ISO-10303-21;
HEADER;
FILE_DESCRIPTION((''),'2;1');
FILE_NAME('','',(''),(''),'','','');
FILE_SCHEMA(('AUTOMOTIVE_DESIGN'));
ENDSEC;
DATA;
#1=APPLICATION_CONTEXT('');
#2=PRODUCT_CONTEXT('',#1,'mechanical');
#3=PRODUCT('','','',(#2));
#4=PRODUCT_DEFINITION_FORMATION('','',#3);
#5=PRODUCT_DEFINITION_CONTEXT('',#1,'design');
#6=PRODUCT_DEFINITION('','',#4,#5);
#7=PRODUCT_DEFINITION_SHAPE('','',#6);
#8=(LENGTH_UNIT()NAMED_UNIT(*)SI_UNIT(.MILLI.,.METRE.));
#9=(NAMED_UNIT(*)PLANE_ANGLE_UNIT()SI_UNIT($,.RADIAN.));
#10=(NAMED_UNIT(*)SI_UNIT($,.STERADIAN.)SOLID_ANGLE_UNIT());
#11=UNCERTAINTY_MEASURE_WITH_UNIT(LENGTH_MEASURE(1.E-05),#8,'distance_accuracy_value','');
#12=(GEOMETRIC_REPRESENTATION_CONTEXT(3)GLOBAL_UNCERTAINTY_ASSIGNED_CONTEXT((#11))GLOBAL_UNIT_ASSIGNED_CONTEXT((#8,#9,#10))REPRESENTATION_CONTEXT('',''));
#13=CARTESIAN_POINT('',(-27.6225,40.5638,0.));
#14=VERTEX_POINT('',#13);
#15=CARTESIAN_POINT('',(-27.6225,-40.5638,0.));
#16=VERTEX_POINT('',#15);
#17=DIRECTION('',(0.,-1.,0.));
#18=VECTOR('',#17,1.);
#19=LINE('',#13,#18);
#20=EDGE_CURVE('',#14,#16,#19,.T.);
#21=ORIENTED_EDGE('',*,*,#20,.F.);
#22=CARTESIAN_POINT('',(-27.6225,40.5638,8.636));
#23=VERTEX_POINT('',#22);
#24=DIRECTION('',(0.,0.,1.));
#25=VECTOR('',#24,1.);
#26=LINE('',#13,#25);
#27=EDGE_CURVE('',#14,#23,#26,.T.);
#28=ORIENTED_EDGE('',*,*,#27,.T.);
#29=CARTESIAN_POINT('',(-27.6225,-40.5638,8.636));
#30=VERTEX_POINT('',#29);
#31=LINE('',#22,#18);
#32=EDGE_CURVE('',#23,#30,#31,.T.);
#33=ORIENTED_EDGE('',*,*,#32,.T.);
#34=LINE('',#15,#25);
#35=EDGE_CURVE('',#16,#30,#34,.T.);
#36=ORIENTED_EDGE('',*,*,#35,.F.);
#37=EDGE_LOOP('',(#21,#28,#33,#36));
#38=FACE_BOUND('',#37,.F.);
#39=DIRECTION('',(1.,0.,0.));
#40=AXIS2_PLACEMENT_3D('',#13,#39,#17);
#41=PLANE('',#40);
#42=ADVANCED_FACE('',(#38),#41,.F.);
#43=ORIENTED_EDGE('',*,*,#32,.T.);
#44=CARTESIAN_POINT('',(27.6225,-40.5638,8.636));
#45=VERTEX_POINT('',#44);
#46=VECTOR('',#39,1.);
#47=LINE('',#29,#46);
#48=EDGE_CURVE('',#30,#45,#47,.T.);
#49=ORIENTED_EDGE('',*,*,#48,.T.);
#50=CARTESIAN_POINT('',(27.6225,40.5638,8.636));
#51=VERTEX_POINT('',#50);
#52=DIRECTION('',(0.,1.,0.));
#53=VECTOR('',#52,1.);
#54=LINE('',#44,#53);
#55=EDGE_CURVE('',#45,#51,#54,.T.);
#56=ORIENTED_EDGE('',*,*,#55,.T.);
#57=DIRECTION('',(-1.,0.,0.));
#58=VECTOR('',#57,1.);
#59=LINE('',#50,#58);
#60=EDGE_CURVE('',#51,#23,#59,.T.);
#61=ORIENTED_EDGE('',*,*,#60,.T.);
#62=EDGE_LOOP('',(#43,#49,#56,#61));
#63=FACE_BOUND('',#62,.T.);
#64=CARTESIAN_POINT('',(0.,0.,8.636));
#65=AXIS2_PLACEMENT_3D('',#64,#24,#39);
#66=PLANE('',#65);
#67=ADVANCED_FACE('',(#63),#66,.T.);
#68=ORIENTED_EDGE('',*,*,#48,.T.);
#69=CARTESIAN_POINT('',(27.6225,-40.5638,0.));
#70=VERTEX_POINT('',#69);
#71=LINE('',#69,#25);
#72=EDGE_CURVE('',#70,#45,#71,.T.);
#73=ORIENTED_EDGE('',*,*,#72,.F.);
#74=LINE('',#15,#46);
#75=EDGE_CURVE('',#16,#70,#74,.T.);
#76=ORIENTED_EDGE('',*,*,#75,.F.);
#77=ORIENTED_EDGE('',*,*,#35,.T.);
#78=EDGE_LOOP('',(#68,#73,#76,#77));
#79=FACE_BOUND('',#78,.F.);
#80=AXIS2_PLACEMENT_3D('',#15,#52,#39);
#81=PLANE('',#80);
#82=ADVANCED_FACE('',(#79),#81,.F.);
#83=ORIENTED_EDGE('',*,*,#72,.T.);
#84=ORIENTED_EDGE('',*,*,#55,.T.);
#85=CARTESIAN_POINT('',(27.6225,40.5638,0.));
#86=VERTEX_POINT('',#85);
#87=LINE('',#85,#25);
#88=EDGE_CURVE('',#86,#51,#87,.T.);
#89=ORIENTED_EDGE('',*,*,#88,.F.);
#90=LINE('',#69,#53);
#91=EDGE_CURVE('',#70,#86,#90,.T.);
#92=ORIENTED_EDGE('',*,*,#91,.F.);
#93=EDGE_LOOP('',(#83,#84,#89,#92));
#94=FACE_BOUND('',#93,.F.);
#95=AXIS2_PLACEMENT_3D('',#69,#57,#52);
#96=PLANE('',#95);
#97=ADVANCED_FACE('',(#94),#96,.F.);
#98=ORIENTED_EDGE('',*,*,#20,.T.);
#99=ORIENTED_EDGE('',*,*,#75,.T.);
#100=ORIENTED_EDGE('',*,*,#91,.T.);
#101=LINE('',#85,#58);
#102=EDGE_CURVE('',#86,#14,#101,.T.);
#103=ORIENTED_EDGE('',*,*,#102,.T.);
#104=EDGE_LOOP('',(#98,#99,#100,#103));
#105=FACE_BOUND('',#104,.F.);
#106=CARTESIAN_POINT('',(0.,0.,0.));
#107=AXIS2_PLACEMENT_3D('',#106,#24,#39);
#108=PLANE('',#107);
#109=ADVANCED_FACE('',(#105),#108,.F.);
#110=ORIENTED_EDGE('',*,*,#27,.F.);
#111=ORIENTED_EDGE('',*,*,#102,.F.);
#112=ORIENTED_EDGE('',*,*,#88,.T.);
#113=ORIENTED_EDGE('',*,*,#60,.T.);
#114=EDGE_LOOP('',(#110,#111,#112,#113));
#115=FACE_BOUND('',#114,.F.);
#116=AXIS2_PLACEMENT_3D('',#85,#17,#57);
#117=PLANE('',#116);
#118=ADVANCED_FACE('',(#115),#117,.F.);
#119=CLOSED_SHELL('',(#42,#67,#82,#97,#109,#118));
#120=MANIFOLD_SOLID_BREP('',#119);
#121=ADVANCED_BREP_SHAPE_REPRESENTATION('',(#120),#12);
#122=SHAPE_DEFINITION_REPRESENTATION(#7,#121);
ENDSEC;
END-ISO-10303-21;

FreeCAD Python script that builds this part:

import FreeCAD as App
import Part
import Sketcher
from FreeCAD import Vector
Q = App.Units.Quantity

doc = App.newDocument("Part")
body = doc.addObject("PartDesign::Body", "Body")

sketch1 = body.newObject("Sketcher::SketchObject", "Sketch")
sketch1.AttachmentSupport = (doc.getObject("XY_Plane"), [""])
sketch1.MapMode = "FlatFace"
sketch1.addGeometry([
    Part.LineSegment(Vector(-28, 41, 0), Vector(-28, -41, 0)),
    Part.LineSegment(Vector(-28, -41, 0), Vector(28, -41, 0)),
    Part.LineSegment(Vector(28, -41, 0), Vector(28, 41, 0)),
    Part.LineSegment(Vector(28, 41, 0), Vector(-28, 41, 0)),
], False)
sketch1.addConstraint([
    Sketcher.Constraint("Coincident", 0, 2, 1, 1),
    Sketcher.Constraint("Coincident", 1, 2, 2, 1),
    Sketcher.Constraint("Coincident", 2, 2, 3, 1),
    Sketcher.Constraint("Coincident", 3, 2, 0, 1),
    Sketcher.Constraint("Vertical", 0),
    Sketcher.Constraint("Horizontal", 1),
    Sketcher.Constraint("Vertical", 2),
    Sketcher.Constraint("Horizontal", 3),
    Sketcher.Constraint("Symmetric", 0, 2, 2, 2, -1, 1),
    Sketcher.Constraint("DistanceX", 1, 1, 1, 2, Q("2.175 in")),
    Sketcher.Constraint("DistanceY", 0, 2, 0, 1, Q("3.194 in")),
])
pad1 = body.newObject("PartDesign::Pad", "Pad")
pad1.Profile = sketch1
pad1.Length = Q("0.34 in")

doc.recompute()
